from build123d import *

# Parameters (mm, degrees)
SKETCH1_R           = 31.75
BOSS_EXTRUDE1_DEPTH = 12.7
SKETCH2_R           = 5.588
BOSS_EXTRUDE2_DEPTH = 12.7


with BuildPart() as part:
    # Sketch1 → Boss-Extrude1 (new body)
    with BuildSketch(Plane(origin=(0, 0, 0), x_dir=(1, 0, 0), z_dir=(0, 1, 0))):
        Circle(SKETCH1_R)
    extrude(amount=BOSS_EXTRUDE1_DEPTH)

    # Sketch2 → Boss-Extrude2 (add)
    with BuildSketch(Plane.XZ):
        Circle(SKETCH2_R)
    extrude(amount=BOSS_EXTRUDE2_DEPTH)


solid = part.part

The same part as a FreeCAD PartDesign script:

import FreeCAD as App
import Part
import Sketcher
from FreeCAD import Vector
Q = App.Units.Quantity

doc = App.newDocument("Part")
params = doc.addObject("Spreadsheet::Sheet", "Params")
for row, (alias, value) in enumerate([
    ("sketch1_diameter", "2.5 in"),
    ("pad1_length", "0.5 in"),
    ("sketch2_diameter", "0.44 in"),
    ("pad2_length", "0.5 in"),
], start=1):
    params.set(f"A{row}", alias)
    params.set(f"B{row}", "=" + value)
    params.setAlias(f"B{row}", alias)

body = doc.addObject("PartDesign::Body", "Body")

sketch1 = doc.addObject("Sketcher::SketchObject", "Sketch")
body.addObject(sketch1)
sketch1.AttachmentSupport = (doc.XZ_Plane, [""])
sketch1.MapMode = "FlatFace"
sketch1.addGeometry(Part.Circle(Vector(0, 0, 0), Vector(0, 0, 1), 32), False)
sketch1.addConstraint(Sketcher.Constraint("Coincident", 0, 3, -1, 1))
sketch1.addConstraint(Sketcher.Constraint("Diameter", 0, Q("2.5 in")))
sketch1.setExpression("Constraints[1]", "Params.sketch1_diameter")
pad1 = doc.addObject("PartDesign::Pad", "Pad")
body.addObject(pad1)
pad1.Profile = sketch1
pad1.setExpression("Length", "Params.pad1_length")
pad1.Reversed = True

sketch2 = doc.addObject("Sketcher::SketchObject", "Sketch001")
body.addObject(sketch2)
sketch2.AttachmentSupport = (doc.XZ_Plane, [""])
sketch2.MapMode = "FlatFace"
sketch2.addGeometry(Part.Circle(Vector(0, 0, 0), Vector(0, 0, 1), 6), False)
sketch2.addConstraint(Sketcher.Constraint("Coincident", 0, 3, -1, 1))
sketch2.addConstraint(Sketcher.Constraint("Diameter", 0, Q("0.44 in")))
sketch2.setExpression("Constraints[1]", "Params.sketch2_diameter")
pad2 = doc.addObject("PartDesign::Pad", "Pad001")
body.addObject(pad2)
pad2.Profile = sketch2
pad2.setExpression("Length", "Params.pad2_length")

doc.recompute()
